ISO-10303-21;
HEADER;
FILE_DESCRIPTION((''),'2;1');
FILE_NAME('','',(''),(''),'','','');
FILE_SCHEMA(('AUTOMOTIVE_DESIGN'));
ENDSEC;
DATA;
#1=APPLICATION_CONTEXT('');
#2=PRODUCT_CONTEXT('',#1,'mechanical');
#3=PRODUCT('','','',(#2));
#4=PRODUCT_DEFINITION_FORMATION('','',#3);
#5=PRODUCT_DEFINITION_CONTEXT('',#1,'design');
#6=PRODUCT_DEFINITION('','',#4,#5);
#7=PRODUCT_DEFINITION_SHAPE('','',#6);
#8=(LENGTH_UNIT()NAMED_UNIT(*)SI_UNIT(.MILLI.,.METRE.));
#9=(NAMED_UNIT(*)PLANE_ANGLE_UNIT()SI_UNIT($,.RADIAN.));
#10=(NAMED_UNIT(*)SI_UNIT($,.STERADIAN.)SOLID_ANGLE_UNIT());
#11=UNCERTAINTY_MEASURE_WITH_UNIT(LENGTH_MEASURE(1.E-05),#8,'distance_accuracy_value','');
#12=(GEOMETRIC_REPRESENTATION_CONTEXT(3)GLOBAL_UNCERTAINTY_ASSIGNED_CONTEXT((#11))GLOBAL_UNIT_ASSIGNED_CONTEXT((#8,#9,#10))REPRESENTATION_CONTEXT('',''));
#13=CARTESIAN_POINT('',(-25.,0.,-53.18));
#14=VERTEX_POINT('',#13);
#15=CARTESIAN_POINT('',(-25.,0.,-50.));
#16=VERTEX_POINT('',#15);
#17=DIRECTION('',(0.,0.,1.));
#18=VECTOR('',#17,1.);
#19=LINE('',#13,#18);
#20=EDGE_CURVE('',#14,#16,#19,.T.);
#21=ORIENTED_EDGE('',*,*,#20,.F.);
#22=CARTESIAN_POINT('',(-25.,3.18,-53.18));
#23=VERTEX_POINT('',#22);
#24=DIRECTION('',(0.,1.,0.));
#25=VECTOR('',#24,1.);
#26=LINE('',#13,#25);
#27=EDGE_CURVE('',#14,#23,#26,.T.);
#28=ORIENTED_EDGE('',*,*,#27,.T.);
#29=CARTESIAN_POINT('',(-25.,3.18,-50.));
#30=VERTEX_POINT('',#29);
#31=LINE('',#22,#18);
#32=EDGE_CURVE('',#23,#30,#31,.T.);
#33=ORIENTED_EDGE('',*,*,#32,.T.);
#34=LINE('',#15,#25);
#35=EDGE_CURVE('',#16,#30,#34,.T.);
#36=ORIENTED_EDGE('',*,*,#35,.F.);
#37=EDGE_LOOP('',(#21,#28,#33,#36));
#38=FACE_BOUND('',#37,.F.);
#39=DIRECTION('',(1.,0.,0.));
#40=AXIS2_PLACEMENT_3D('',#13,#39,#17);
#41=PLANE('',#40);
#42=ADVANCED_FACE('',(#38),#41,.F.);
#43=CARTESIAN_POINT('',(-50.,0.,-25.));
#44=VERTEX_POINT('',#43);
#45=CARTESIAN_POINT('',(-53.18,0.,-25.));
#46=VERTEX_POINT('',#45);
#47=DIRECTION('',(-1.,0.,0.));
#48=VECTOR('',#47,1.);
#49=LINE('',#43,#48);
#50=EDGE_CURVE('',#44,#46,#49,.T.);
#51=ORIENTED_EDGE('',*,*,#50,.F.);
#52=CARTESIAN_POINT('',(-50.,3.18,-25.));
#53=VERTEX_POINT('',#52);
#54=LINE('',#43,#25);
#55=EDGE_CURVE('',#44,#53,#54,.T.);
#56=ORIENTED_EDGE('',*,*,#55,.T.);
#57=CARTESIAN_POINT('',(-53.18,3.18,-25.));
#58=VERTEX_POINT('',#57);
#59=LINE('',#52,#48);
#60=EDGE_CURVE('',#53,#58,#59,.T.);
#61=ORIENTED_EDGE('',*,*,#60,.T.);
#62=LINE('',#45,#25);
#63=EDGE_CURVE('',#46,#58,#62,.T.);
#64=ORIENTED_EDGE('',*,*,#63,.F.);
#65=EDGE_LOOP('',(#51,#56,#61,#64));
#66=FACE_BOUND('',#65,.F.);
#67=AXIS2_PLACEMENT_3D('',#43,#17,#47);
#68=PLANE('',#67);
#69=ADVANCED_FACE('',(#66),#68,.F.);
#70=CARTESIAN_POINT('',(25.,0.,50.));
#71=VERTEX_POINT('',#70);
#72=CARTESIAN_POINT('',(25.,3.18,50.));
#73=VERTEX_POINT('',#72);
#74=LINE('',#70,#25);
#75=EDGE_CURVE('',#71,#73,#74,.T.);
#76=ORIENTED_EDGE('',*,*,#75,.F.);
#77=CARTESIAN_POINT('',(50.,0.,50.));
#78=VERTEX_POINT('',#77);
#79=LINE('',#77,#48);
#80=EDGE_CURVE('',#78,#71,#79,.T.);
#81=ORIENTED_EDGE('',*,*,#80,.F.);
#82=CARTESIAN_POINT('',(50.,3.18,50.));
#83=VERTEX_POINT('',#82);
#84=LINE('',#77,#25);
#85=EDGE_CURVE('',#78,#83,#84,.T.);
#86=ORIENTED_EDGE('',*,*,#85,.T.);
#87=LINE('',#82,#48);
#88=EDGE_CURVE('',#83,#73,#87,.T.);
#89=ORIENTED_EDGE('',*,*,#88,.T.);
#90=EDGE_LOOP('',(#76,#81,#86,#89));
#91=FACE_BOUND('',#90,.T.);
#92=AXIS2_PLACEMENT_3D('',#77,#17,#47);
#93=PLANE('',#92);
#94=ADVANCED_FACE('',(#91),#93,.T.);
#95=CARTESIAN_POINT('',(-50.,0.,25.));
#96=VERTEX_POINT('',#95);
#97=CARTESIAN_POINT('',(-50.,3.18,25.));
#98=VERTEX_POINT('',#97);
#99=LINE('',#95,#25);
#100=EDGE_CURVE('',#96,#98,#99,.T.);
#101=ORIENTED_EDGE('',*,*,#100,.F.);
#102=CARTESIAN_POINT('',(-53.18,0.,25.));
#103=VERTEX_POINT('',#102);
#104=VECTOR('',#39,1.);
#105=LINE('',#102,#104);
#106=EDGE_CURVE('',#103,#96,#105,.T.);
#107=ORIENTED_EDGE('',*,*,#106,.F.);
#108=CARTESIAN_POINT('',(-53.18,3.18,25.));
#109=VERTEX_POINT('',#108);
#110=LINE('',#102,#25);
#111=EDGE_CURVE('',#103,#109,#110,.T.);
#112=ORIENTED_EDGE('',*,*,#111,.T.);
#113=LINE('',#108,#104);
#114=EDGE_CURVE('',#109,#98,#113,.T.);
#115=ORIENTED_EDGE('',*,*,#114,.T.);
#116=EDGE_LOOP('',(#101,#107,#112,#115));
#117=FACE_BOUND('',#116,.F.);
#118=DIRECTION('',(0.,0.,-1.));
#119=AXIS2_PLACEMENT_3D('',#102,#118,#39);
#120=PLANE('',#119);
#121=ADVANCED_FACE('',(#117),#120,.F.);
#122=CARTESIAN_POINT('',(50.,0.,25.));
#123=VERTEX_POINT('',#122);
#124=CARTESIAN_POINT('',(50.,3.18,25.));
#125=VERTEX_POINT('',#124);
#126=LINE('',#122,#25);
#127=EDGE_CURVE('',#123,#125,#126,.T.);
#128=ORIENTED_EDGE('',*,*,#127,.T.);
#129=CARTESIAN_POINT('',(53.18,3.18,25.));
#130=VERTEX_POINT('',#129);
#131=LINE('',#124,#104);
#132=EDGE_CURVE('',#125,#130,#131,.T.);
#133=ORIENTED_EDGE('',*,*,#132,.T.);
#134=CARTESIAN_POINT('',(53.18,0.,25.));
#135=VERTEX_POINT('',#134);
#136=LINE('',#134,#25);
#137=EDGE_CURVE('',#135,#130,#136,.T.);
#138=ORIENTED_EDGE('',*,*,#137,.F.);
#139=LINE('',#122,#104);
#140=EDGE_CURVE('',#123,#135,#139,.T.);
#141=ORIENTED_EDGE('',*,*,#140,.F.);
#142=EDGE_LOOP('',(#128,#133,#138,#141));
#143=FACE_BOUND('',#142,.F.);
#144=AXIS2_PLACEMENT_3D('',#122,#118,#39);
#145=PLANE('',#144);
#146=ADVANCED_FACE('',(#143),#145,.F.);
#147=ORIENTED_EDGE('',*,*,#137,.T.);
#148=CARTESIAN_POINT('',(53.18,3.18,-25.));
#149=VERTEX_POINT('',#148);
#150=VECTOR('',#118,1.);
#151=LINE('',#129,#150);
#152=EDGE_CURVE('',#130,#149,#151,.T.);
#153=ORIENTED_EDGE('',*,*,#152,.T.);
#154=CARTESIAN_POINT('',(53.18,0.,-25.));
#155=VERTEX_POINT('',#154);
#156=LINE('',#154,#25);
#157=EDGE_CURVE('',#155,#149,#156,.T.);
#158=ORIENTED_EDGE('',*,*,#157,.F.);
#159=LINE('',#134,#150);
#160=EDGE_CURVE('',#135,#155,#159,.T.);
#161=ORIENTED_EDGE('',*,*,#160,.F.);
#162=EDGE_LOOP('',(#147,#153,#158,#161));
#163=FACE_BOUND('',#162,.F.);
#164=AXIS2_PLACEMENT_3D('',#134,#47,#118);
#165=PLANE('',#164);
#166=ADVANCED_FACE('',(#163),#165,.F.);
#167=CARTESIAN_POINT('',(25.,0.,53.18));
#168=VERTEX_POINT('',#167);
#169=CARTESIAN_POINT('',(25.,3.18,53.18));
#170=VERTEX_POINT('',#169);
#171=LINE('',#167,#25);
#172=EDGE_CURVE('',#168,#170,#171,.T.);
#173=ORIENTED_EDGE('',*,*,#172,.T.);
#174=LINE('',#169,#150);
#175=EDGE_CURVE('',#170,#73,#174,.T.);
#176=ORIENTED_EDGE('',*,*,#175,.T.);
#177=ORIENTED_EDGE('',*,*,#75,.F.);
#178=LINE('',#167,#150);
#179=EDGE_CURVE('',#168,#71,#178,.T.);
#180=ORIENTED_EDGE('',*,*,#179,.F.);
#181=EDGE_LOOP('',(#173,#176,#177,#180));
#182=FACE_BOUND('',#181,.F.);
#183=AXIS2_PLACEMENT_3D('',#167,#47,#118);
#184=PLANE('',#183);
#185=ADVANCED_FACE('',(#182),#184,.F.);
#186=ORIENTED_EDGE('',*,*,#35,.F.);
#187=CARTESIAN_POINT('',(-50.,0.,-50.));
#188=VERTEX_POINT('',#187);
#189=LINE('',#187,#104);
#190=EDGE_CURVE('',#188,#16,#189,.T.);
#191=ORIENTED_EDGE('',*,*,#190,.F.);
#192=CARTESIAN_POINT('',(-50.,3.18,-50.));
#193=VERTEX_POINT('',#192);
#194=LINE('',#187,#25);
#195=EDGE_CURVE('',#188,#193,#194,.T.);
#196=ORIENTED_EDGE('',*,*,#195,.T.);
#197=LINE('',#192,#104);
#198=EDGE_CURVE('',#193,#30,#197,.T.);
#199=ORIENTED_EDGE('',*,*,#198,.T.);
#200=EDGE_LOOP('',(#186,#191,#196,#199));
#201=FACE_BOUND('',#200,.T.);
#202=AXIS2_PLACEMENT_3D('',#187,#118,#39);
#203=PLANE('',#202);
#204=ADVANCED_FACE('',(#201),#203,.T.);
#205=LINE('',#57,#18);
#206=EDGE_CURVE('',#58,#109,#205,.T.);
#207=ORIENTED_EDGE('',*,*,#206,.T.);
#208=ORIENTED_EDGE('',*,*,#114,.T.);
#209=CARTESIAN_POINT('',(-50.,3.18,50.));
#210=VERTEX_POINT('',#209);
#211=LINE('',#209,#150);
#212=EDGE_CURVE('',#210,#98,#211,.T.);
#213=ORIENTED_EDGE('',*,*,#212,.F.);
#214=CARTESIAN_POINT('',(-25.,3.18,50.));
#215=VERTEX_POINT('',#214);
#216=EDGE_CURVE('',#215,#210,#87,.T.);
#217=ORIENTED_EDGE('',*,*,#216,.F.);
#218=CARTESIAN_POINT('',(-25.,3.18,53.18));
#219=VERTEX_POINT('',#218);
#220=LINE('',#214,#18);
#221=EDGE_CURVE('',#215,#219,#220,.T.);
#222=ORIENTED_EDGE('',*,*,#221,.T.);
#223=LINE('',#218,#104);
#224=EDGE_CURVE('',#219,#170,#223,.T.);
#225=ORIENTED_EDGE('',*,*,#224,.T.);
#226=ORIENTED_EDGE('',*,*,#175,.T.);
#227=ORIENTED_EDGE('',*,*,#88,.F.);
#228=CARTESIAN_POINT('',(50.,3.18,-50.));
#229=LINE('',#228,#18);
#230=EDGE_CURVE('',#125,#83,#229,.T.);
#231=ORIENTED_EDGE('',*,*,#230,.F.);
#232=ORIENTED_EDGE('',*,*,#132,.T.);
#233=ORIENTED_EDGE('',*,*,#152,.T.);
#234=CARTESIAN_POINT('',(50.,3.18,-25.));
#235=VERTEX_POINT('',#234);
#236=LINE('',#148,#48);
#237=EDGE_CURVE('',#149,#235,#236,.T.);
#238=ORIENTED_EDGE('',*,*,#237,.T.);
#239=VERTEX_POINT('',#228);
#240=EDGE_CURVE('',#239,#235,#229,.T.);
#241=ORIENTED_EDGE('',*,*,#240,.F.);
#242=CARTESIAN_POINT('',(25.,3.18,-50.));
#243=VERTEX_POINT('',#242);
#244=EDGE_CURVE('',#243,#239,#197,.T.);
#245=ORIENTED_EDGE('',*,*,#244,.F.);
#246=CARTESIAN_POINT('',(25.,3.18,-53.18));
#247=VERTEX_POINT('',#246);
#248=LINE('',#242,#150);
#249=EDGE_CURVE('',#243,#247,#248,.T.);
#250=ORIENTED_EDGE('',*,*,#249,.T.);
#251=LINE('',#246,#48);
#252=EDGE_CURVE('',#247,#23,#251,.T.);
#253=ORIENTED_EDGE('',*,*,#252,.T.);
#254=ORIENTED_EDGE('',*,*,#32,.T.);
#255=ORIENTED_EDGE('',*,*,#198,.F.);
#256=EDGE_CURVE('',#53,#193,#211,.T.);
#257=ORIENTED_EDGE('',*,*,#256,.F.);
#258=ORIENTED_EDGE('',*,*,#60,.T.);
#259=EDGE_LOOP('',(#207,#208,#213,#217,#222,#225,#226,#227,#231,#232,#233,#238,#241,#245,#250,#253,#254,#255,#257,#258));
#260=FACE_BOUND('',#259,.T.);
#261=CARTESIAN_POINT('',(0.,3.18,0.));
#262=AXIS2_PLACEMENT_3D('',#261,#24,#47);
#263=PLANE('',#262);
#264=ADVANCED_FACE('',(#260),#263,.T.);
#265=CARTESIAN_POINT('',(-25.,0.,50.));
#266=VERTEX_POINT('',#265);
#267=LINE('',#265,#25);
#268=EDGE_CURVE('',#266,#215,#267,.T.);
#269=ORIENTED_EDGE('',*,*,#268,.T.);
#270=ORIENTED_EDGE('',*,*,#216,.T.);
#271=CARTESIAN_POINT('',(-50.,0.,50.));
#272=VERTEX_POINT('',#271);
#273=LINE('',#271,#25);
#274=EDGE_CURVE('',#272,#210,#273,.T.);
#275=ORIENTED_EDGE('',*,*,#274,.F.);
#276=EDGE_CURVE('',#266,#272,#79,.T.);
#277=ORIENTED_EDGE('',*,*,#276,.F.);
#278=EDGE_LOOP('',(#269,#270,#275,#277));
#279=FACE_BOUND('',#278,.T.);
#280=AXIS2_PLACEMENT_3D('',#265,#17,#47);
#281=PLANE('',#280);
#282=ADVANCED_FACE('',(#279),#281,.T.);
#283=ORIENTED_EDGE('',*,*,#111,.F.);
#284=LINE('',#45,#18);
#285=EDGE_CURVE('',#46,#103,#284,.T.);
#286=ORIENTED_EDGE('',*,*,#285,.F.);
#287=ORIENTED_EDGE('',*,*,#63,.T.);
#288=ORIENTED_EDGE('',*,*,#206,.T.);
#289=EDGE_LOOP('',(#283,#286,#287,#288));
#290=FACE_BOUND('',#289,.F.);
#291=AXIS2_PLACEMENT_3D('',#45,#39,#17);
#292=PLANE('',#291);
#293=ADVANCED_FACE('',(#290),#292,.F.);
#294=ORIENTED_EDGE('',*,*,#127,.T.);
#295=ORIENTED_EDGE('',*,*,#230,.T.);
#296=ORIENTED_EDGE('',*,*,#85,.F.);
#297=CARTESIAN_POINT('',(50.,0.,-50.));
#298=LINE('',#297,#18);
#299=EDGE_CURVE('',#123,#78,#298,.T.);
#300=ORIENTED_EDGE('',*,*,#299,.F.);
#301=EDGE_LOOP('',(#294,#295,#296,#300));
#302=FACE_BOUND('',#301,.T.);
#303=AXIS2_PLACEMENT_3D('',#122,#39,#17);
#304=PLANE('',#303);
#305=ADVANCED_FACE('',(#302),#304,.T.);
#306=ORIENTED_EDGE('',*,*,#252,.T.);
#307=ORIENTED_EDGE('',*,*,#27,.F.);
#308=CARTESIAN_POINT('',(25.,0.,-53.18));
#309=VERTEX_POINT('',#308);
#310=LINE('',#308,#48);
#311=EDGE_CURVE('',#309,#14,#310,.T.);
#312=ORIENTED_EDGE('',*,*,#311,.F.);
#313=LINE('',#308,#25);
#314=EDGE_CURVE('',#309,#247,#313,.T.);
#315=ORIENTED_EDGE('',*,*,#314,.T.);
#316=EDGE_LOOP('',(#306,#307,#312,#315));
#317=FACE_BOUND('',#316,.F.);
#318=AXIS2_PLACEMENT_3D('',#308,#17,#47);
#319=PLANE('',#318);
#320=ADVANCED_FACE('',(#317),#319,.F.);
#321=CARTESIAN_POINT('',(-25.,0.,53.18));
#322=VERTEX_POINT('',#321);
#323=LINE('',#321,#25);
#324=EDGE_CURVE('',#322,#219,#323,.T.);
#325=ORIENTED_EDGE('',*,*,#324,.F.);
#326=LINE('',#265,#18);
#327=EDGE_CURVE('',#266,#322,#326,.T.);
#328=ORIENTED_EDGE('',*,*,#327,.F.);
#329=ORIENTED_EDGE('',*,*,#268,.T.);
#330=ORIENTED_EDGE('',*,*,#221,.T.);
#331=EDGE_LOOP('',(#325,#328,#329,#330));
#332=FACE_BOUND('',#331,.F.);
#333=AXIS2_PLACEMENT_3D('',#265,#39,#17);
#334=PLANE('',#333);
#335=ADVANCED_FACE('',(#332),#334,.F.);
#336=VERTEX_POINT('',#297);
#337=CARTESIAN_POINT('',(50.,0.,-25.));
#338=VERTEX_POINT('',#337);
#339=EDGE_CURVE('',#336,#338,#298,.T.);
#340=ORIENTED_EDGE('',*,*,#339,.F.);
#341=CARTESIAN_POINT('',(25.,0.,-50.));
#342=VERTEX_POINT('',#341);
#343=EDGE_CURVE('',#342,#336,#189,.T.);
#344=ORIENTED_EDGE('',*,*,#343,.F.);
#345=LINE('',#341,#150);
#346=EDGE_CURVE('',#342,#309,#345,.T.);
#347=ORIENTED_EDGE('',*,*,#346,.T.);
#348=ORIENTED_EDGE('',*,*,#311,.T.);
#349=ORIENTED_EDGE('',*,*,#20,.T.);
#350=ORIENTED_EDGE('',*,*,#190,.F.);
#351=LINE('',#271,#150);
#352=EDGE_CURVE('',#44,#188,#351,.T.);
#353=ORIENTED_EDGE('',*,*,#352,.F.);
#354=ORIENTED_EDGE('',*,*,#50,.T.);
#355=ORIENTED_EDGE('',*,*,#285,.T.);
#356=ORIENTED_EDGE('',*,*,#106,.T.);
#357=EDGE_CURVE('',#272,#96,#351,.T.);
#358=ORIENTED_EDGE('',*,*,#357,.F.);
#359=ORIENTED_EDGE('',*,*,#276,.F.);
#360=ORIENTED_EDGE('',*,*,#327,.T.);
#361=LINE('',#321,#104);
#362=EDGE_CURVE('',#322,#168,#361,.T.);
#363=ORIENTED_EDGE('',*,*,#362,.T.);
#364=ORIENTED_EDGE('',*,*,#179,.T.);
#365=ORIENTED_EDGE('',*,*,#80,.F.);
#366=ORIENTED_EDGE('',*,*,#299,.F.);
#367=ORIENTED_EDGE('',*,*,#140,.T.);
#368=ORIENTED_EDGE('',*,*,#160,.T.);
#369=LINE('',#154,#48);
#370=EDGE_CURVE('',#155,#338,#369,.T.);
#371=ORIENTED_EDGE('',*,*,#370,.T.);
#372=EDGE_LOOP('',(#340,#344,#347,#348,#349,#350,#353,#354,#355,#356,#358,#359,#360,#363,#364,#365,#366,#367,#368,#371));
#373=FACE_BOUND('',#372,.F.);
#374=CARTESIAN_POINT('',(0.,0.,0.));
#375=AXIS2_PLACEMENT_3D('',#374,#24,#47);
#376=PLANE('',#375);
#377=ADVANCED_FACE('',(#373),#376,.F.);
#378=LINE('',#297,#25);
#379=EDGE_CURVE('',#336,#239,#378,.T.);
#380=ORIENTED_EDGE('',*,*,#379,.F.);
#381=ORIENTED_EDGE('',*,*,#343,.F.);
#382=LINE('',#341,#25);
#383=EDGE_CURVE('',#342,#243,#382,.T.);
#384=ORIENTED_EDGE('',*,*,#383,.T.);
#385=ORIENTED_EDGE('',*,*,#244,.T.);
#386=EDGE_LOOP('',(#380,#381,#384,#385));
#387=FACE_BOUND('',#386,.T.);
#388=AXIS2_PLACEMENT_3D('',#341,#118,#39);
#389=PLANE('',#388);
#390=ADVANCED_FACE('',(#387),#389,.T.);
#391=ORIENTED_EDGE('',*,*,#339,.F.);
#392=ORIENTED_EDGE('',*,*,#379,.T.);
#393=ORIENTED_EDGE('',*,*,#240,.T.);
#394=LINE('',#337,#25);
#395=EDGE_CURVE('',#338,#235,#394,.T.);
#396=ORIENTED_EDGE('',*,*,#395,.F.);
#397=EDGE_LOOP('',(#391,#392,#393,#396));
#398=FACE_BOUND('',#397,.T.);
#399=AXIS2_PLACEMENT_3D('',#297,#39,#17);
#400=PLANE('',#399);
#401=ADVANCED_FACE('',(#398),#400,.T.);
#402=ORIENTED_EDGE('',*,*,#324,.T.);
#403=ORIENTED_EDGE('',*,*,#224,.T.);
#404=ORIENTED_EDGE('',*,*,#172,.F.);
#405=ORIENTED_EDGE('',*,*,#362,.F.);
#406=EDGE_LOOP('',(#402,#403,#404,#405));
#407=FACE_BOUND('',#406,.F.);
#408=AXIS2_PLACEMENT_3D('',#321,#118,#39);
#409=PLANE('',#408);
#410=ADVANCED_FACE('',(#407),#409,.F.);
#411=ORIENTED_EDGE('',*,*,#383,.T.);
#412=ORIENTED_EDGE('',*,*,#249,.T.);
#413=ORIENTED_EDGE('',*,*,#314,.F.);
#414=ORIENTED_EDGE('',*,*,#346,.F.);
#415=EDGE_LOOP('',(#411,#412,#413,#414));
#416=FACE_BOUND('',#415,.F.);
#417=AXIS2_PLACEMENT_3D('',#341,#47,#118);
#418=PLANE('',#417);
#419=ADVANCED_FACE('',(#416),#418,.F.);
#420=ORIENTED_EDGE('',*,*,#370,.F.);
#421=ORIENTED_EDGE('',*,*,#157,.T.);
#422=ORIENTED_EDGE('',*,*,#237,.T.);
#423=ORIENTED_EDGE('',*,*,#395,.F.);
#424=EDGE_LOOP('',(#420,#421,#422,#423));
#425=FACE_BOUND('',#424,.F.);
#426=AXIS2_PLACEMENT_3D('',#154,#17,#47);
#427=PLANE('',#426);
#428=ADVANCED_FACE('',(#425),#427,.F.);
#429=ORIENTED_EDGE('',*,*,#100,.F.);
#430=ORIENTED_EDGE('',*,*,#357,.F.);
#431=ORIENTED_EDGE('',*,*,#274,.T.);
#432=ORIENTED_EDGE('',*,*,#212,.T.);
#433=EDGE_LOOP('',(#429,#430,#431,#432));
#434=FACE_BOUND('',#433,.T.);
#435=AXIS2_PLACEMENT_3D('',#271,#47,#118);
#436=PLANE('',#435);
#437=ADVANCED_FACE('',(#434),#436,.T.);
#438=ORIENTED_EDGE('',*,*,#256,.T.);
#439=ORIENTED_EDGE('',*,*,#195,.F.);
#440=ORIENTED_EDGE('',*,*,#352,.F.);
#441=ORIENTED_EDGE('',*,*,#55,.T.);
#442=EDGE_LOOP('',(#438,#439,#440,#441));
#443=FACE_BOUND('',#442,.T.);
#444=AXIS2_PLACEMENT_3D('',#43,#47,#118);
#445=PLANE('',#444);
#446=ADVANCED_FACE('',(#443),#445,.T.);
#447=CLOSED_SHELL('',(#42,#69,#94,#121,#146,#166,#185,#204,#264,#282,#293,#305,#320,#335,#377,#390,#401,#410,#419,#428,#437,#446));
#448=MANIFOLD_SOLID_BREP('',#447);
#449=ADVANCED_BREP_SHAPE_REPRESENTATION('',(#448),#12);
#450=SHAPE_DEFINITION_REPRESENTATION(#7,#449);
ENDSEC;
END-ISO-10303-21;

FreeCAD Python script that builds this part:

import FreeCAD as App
import Part
import Sketcher
Q = App.Units.Quantity

doc = App.newDocument("Part")
body = doc.addObject("PartDesign::Body", "Body")

sketch1 = body.newObject("Sketcher::SketchObject", "Sketch")
sketch1.AttachmentSupport = (doc.getObject("XZ_Plane"), [""])
sketch1.MapMode = "FlatFace"
sketch1.addGeometry(Part.LineSegment(App.Vector(25, 50, 0), App.Vector(50, 50, 0)), False)
sketch1.addGeometry(Part.LineSegment(App.Vector(50, 50, 0), App.Vector(50, 25, 0)), False)
sketch1.addGeometry(Part.LineSegment(App.Vector(50, 25, 0), App.Vector(53.2, 25, 0)), False)
sketch1.addGeometry(Part.LineSegment(App.Vector(53.2, 25, 0), App.Vector(53.2, -25, 0)), False)
sketch1.addGeometry(Part.LineSegment(App.Vector(53.2, -25, 0), App.Vector(50, -25, 0)), False)
sketch1.addGeometry(Part.LineSegment(App.Vector(50, -25, 0), App.Vector(50, -50, 0)), False)
sketch1.addGeometry(Part.LineSegment(App.Vector(50, -50, 0), App.Vector(25, -50, 0)), False)
sketch1.addGeometry(Part.LineSegment(App.Vector(25, -50, 0), App.Vector(25, -53.2, 0)), False)
sketch1.addGeometry(Part.LineSegment(App.Vector(25, -53.2, 0), App.Vector(-25, -53.2, 0)), False)
sketch1.addGeometry(Part.LineSegment(App.Vector(-25, -53.2, 0), App.Vector(-25, -50, 0)), False)
sketch1.addGeometry(Part.LineSegment(App.Vector(-25, -50, 0), App.Vector(-50, -50, 0)), False)
sketch1.addGeometry(Part.LineSegment(App.Vector(-50, -50, 0), App.Vector(-50, -25, 0)), False)
sketch1.addGeometry(Part.LineSegment(App.Vector(-50, -25, 0), App.Vector(-53.2, -25, 0)), False)
sketch1.addGeometry(Part.LineSegment(App.Vector(-53.2, -25, 0), App.Vector(-53.2, 25, 0)), False)
sketch1.addGeometry(Part.LineSegment(App.Vector(-53.2, 25, 0), App.Vector(-50, 25, 0)), False)
sketch1.addGeometry(Part.LineSegment(App.Vector(-50, 25, 0), App.Vector(-50, 50, 0)), False)
sketch1.addGeometry(Part.LineSegment(App.Vector(-50, 50, 0), App.Vector(-25, 50, 0)), False)
sketch1.addGeometry(Part.LineSegment(App.Vector(-25, 50, 0), App.Vector(-25, 53.2, 0)), False)
sketch1.addGeometry(Part.LineSegment(App.Vector(-25, 53.2, 0), App.Vector(25, 53.2, 0)), False)
sketch1.addGeometry(Part.LineSegment(App.Vector(25, 53.2, 0), App.Vector(25, 50, 0)), False)
sketch1.addConstraint(Sketcher.Constraint("Coincident", 0, 2, 1, 1))
sketch1.addConstraint(Sketcher.Constraint("Coincident", 1, 2, 2, 1))
sketch1.addConstraint(Sketcher.Constraint("Coincident", 2, 2, 3, 1))
sketch1.addConstraint(Sketcher.Constraint("Coincident", 3, 2, 4, 1))
sketch1.addConstraint(Sketcher.Constraint("Coincident", 4, 2, 5, 1))
sketch1.addConstraint(Sketcher.Constraint("Coincident", 5, 2, 6, 1))
sketch1.addConstraint(Sketcher.Constraint("Coincident", 6, 2, 7, 1))
sketch1.addConstraint(Sketcher.Constraint("Coincident", 7, 2, 8, 1))
sketch1.addConstraint(Sketcher.Constraint("Coincident", 8, 2, 9, 1))
sketch1.addConstraint(Sketcher.Constraint("Coincident", 9, 2, 10, 1))
sketch1.addConstraint(Sketcher.Constraint("Coincident", 10, 2, 11, 1))
sketch1.addConstraint(Sketcher.Constraint("Coincident", 11, 2, 12, 1))
sketch1.addConstraint(Sketcher.Constraint("Coincident", 12, 2, 13, 1))
sketch1.addConstraint(Sketcher.Constraint("Coincident", 13, 2, 14, 1))
sketch1.addConstraint(Sketcher.Constraint("Coincident", 14, 2, 15, 1))
sketch1.addConstraint(Sketcher.Constraint("Coincident", 15, 2, 16, 1))
sketch1.addConstraint(Sketcher.Constraint("Coincident", 16, 2, 17, 1))
sketch1.addConstraint(Sketcher.Constraint("Coincident", 17, 2, 18, 1))
sketch1.addConstraint(Sketcher.Constraint("Coincident", 18, 2, 19, 1))
sketch1.addConstraint(Sketcher.Constraint("Coincident", 19, 2, 0, 1))
sketch1.addConstraint(Sketcher.Constraint("Horizontal", 0))
sketch1.addConstraint(Sketcher.Constraint("Vertical", 1))
sketch1.addConstraint(Sketcher.Constraint("Horizontal", 2))
sketch1.addConstraint(Sketcher.Constraint("Vertical", 3))
sketch1.addConstraint(Sketcher.Constraint("Horizontal", 4))
sketch1.addConstraint(Sketcher.Constraint("Vertical", 5))
sketch1.addConstraint(Sketcher.Constraint("Horizontal", 6))
sketch1.addConstraint(Sketcher.Constraint("Vertical", 7))
sketch1.addConstraint(Sketcher.Constraint("Horizontal", 8))
sketch1.addConstraint(Sketcher.Constraint("Vertical", 9))
sketch1.addConstraint(Sketcher.Constraint("Horizontal", 10))
sketch1.addConstraint(Sketcher.Constraint("Vertical", 11))
sketch1.addConstraint(Sketcher.Constraint("Horizontal", 12))
sketch1.addConstraint(Sketcher.Constraint("Vertical", 13))
sketch1.addConstraint(Sketcher.Constraint("Horizontal", 14))
sketch1.addConstraint(Sketcher.Constraint("Vertical", 15))
sketch1.addConstraint(Sketcher.Constraint("Horizontal", 16))
sketch1.addConstraint(Sketcher.Constraint("Vertical", 17))
sketch1.addConstraint(Sketcher.Constraint("Horizontal", 18))
sketch1.addConstraint(Sketcher.Constraint("Vertical", 19))
sketch1.addConstraint(Sketcher.Constraint("Symmetric", 0, 2, 10, 2, -1, 1))
sketch1.addConstraint(Sketcher.Constraint("Symmetric", 2, 2, 12, 2, -1, 1))
sketch1.addConstraint(Sketcher.Constraint("Symmetric", 4, 2, 14, 2, -1, 1))
sketch1.addConstraint(Sketcher.Constraint("Symmetric", 6, 2, 16, 2, -1, 1))
sketch1.addConstraint(Sketcher.Constraint("Symmetric", 8, 2, 18, 2, -1, 1))
sketch1.addConstraint(Sketcher.Constraint("Symmetric", 6, 2, 9, 2, -2))
sketch1.addConstraint(Sketcher.Constraint("Symmetric", 4, 2, 11, 2, -2))
sketch1.addConstraint(Sketcher.Constraint("Equal", 16, 1))
sketch1.addConstraint(Sketcher.Constraint("Equal", 18, 3))
sketch1.addConstraint(Sketcher.Constraint("Equal", 14, 7))
sketch1.addConstraint(Sketcher.Constraint("DistanceX", 0, 1, 0, 2, Q("25 mm")))
sketch1.addConstraint(Sketcher.Constraint("DistanceX", 8, 2, 8, 1, Q("50 mm")))
sketch1.addConstraint(Sketcher.Constraint("DistanceX", 2, 1, 2, 2, Q("3.18 mm")))
pad1 = body.newObject("PartDesign::Pad", "Pad")
pad1.Profile = sketch1
pad1.Length = 3.18
pad1.Reversed = True

doc.recompute()
